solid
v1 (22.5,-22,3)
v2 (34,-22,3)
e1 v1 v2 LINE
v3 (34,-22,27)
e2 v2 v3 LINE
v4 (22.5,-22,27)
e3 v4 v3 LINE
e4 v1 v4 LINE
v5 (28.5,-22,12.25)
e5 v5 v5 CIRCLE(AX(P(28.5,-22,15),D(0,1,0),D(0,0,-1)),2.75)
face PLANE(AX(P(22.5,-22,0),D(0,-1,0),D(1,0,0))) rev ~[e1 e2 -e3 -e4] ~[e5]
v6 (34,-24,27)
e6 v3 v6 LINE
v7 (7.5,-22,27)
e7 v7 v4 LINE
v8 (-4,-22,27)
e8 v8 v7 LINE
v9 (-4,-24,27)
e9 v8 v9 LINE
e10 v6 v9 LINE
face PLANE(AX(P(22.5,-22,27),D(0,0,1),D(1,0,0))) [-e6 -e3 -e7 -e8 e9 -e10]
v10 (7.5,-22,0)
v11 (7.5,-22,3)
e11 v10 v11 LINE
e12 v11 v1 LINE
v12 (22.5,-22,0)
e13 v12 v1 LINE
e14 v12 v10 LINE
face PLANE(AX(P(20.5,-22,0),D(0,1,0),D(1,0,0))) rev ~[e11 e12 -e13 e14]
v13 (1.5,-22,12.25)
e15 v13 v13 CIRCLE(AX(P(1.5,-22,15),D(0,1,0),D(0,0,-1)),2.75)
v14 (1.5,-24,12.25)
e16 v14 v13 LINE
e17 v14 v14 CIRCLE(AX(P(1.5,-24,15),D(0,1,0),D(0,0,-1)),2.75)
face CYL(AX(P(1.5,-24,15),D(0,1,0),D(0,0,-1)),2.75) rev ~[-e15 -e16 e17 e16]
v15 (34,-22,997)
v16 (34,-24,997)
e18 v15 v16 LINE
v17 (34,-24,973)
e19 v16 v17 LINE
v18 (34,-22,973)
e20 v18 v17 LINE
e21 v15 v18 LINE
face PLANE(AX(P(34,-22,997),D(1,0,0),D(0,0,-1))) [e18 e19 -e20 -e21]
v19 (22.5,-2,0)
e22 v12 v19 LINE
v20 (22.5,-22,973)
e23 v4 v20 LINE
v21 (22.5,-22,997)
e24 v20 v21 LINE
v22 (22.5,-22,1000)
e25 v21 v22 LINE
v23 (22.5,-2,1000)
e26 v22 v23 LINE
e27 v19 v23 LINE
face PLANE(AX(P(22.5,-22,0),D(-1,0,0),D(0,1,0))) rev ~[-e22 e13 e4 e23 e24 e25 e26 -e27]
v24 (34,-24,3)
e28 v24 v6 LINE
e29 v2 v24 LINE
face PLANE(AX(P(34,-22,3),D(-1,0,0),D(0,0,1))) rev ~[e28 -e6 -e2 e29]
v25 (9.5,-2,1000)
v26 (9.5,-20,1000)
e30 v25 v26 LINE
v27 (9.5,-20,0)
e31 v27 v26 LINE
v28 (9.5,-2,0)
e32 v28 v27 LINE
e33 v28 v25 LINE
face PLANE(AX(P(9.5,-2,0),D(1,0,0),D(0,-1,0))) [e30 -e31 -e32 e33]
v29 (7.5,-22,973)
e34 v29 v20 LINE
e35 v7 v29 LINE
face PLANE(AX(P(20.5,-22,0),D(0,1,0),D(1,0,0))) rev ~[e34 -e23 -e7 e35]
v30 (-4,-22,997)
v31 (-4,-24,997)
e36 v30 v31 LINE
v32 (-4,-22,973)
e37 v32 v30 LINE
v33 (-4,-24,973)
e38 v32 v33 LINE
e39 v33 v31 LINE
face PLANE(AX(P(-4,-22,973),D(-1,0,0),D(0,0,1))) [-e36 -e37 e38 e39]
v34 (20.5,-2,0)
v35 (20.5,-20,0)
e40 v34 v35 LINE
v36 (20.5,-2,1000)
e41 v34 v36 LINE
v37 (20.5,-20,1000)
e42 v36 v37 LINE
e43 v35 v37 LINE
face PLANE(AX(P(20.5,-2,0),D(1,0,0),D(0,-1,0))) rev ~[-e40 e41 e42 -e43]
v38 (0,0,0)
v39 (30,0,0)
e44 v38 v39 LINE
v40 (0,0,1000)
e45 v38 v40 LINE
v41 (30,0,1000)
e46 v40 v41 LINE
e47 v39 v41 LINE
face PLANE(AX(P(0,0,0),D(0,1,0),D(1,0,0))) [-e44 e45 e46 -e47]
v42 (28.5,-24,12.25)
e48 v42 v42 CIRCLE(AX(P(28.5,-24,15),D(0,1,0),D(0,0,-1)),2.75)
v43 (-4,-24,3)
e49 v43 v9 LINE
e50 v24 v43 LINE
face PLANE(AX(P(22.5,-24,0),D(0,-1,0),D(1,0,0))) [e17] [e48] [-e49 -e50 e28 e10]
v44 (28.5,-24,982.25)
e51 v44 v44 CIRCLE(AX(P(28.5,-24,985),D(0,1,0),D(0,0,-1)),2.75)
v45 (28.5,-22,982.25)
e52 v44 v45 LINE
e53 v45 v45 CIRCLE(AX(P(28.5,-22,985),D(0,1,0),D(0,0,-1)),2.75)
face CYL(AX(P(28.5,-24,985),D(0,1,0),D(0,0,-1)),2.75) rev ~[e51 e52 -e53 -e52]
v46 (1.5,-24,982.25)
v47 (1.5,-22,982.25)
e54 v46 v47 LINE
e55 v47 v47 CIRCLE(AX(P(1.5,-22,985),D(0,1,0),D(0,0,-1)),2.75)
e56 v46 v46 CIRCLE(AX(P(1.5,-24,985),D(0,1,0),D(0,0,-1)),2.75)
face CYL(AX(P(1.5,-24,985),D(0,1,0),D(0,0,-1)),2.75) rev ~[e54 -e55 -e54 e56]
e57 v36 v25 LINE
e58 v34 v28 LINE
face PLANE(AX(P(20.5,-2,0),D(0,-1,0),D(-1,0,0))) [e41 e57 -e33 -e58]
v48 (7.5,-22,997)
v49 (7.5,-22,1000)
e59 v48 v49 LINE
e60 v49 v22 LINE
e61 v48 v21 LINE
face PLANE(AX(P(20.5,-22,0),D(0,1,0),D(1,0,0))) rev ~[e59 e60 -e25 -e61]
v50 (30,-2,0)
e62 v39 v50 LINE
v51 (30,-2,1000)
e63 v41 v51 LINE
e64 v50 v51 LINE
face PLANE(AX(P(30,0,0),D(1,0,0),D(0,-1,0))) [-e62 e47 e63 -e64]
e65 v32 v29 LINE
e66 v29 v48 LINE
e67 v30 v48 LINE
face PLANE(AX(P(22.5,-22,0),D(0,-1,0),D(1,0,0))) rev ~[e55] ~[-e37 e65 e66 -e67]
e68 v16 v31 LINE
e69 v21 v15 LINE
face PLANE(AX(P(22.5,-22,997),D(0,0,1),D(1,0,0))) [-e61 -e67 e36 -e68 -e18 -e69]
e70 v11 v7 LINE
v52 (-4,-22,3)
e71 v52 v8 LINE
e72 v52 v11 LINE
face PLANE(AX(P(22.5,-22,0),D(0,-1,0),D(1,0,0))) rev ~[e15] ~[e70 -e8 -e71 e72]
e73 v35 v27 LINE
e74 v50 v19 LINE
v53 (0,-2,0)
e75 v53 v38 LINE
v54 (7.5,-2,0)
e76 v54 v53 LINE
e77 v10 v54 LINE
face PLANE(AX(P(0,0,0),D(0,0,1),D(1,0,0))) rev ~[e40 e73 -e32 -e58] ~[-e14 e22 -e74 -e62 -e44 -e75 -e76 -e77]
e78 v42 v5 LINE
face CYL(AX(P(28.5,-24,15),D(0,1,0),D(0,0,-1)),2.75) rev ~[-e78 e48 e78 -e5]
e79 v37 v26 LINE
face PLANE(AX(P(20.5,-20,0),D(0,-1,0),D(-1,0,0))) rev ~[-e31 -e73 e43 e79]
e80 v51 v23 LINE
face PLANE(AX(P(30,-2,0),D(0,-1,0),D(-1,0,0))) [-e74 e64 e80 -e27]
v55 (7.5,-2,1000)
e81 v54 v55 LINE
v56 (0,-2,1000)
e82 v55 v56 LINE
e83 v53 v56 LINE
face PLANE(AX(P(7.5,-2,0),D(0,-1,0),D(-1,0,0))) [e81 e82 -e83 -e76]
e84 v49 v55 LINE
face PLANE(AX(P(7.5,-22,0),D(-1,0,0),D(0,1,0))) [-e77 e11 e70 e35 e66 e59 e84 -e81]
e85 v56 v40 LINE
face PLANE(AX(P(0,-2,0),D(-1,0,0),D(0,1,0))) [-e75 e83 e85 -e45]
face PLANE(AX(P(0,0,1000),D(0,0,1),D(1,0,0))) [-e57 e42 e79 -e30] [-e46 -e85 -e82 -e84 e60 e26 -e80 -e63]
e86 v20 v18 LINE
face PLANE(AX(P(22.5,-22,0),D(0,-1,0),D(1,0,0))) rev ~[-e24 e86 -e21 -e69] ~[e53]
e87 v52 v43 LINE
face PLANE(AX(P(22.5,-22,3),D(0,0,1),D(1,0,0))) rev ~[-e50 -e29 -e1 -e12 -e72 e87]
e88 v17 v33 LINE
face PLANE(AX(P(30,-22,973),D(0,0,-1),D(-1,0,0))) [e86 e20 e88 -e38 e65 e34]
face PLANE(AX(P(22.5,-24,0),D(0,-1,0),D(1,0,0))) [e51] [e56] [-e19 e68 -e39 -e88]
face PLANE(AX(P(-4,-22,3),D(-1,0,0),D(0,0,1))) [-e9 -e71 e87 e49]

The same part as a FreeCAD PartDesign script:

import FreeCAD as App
import Part
import Sketcher
from FreeCAD import Vector
Q = App.Units.Quantity

doc = App.newDocument("Part")
body = doc.addObject("PartDesign::Body", "Body")

sketch1 = body.newObject("Sketcher::SketchObject", "Sketch")
sketch1.AttachmentSupport = (doc.getObject("XY_Plane"), [""])
sketch1.MapMode = "FlatFace"
sketch1.addGeometry([
    Part.LineSegment(Vector(30, 0, 0), Vector(0, 0, 0)),
    Part.LineSegment(Vector(0, 0, 0), Vector(0, -2, 0)),
    Part.LineSegment(Vector(0, -2, 0), Vector(7.5, -2, 0)),
    Part.LineSegment(Vector(7.5, -2, 0), Vector(7.5, -22, 0)),
    Part.LineSegment(Vector(7.5, -22, 0), Vector(22.5, -22, 0)),
    Part.LineSegment(Vector(22.5, -22, 0), Vector(22.5, -2, 0)),
    Part.LineSegment(Vector(22.5, -2, 0), Vector(30, -2, 0)),
    Part.LineSegment(Vector(30, -2, 0), Vector(30, 0, 0)),
    Part.LineSegment(Vector(9.5, -2, 0), Vector(20.5, -2, 0)),
    Part.LineSegment(Vector(20.5, -2, 0), Vector(20.5, -20, 0)),
    Part.LineSegment(Vector(20.5, -20, 0), Vector(9.5, -20, 0)),
    Part.LineSegment(Vector(9.5, -20, 0), Vector(9.5, -2, 0)),
], False)
sketch1.addConstraint([
    Sketcher.Constraint("Coincident", 0, 2, 1, 1),
    Sketcher.Constraint("Coincident", 1, 2, 2, 1),
    Sketcher.Constraint("Coincident", 2, 2, 3, 1),
    Sketcher.Constraint("Coincident", 3, 2, 4, 1),
    Sketcher.Constraint("Coincident", 4, 2, 5, 1),
    Sketcher.Constraint("Coincident", 5, 2, 6, 1),
    Sketcher.Constraint("Coincident", 6, 2, 7, 1),
    Sketcher.Constraint("Coincident", 7, 2, 0, 1),
    Sketcher.Constraint("Coincident", 8, 2, 9, 1),
    Sketcher.Constraint("Coincident", 9, 2, 10, 1),
    Sketcher.Constraint("Coincident", 10, 2, 11, 1),
    Sketcher.Constraint("Coincident", 11, 2, 8, 1),
    Sketcher.Constraint("Horizontal", 0),
    Sketcher.Constraint("Vertical", 1),
    Sketcher.Constraint("Horizontal", 2),
    Sketcher.Constraint("Vertical", 3),
    Sketcher.Constraint("Horizontal", 4),
    Sketcher.Constraint("Vertical", 5),
    Sketcher.Constraint("Horizontal", 6),
    Sketcher.Constraint("Vertical", 7),
    Sketcher.Constraint("Horizontal", 8),
    Sketcher.Constraint("Vertical", 9),
    Sketcher.Constraint("Horizontal", 10),
    Sketcher.Constraint("Vertical", 11),
    Sketcher.Constraint("Coincident", 0, 2, -1, 1),
    Sketcher.Constraint("Horizontal", 2, 2, 5, 2),
    Sketcher.Constraint("Horizontal", 6, 2, 8, 2),
    Sketcher.Constraint("Equal", 2, 6),
    Sketcher.Constraint("DistanceX", 0, 2, 0, 1, Q("30 mm")),
    Sketcher.Constraint("DistanceX", 8, 1, 8, 2, Q("11 mm")),
    Sketcher.Constraint("DistanceY", 1, 2, 1, 1, Q("2 mm")),
    Sketcher.Constraint("DistanceY", 3, 2, 3, 1, Q("20 mm")),
    Sketcher.Constraint("DistanceX", 2, 1, 2, 2, Q("7.5 mm")),
    Sketcher.Constraint("DistanceY", 9, 2, -1, 1, Q("20 mm")),
    Sketcher.Constraint("DistanceX", 8, 2, 5, 2, Q("2 mm")),
])
pad1 = body.newObject("PartDesign::Pad", "Pad")
pad1.Profile = sketch1
pad1.Length = 1000

sketch2 = body.newObject("Sketcher::SketchObject", "Sketch001")
sketch2.AttachmentSupport = (doc.getObject("XZ_Plane"), [""])
sketch2.MapMode = "FlatFace"
sketch2.AttachmentOffset = App.Placement(Vector(0, 0, 22), App.Rotation())
sketch2.addGeometry([
    Part.LineSegment(Vector(34, 3, 0), Vector(34, 27, 0)),
    Part.LineSegment(Vector(34, 27, 0), Vector(-4, 27, 0)),
    Part.LineSegment(Vector(-4, 27, 0), Vector(-4, 3, 0)),
    Part.LineSegment(Vector(-4, 3, 0), Vector(34, 3, 0)),
    Part.LineSegment(Vector(34, 973, 0), Vector(34, 997, 0)),
    Part.LineSegment(Vector(34, 997, 0), Vector(-4, 997, 0)),
    Part.LineSegment(Vector(-4, 997, 0), Vector(-4, 973, 0)),
    Part.LineSegment(Vector(-4, 973, 0), Vector(34, 973, 0)),
], False)
sketch2.addConstraint([
    Sketcher.Constraint("Coincident", 0, 2, 1, 1),
    Sketcher.Constraint("Coincident", 1, 2, 2, 1),
    Sketcher.Constraint("Coincident", 2, 2, 3, 1),
    Sketcher.Constraint("Coincident", 3, 2, 0, 1),
    Sketcher.Constraint("Coincident", 4, 2, 5, 1),
    Sketcher.Constraint("Coincident", 5, 2, 6, 1),
    Sketcher.Constraint("Coincident", 6, 2, 7, 1),
    Sketcher.Constraint("Coincident", 7, 2, 4, 1),
    Sketcher.Constraint("Vertical", 0),
    Sketcher.Constraint("Horizontal", 1),
    Sketcher.Constraint("Vertical", 2),
    Sketcher.Constraint("Horizontal", 3),
    Sketcher.Constraint("Vertical", 4),
    Sketcher.Constraint("Horizontal", 5),
    Sketcher.Constraint("Vertical", 6),
    Sketcher.Constraint("Horizontal", 7),
    Sketcher.Constraint("Vertical", 3, 2, 4, 2),
    Sketcher.Constraint("Vertical", 2, 2, 5, 2),
    Sketcher.Constraint("Equal", 2, 4),
    Sketcher.Constraint("DistanceY", 0, 1, 0, 2, Q("24 mm")),
    Sketcher.Constraint("DistanceX", 1, 2, -1, 1, Q("4 mm")),
    Sketcher.Constraint("DistanceY", -1, 1, 2, 2, Q("3 mm")),
    Sketcher.Constraint("DistanceX", 1, 2, 1, 1, Q("38 mm")),
    Sketcher.Constraint("DistanceY", -1, 1, 4, 2, Q("997 mm")),
])
pad2 = body.newObject("PartDesign::Pad", "Pad001")
pad2.Profile = sketch2
pad2.Length = 2

sketch3 = body.newObject("Sketcher::SketchObject", "Sketch002")
sketch3.AttachmentSupport = (doc.getObject("XZ_Plane"), [""])
sketch3.MapMode = "FlatFace"
sketch3.AttachmentOffset = App.Placement(Vector(0, 0, 24), App.Rotation())
sketch3.addGeometry([
    Part.Circle(Vector(1.5, 15, 0), Vector(0, 0, 1), 2.8),
    Part.Circle(Vector(28.5, 15, 0), Vector(0, 0, 1), 2.8),
    Part.Circle(Vector(1.5, 985, 0), Vector(0, 0, 1), 2.8),
    Part.Circle(Vector(28.5, 985, 0), Vector(0, 0, 1), 2.8),
], False)
sketch3.addConstraint([
    Sketcher.Constraint("Equal", 0, 1),
    Sketcher.Constraint("Equal", 1, 2),
    Sketcher.Constraint("Equal", 2, 3),
    Sketcher.Constraint("Horizontal", 0, 3, 1, 3),
    Sketcher.Constraint("Horizontal", 2, 3, 3, 3),
    Sketcher.Constraint("Vertical", 0, 3, 2, 3),
    Sketcher.Constraint("Vertical", 1, 3, 3, 3),
    Sketcher.Constraint("Diameter", 0, Q("5.5 mm")),
    Sketcher.Constraint("DistanceY", -1, 1, 0, 3, Q("15 mm")),
    Sketcher.Constraint("DistanceY", -1, 1, 2, 3, Q("985 mm")),
    Sketcher.Constraint("DistanceX", 0, 3, 1, 3, Q("27 mm")),
    Sketcher.Constraint("DistanceX", -1, 1, 0, 3, Q("1.5 mm")),
])
doc.recompute()
hole = body.newObject("PartDesign::Hole", "Hole")
hole.Profile = sketch3
hole.ThreadType = "None"
hole.Diameter = 5.5
hole.DepthType = "Dimension"
hole.Depth = 2
hole.DrillPoint = "Flat"

doc.recompute()
